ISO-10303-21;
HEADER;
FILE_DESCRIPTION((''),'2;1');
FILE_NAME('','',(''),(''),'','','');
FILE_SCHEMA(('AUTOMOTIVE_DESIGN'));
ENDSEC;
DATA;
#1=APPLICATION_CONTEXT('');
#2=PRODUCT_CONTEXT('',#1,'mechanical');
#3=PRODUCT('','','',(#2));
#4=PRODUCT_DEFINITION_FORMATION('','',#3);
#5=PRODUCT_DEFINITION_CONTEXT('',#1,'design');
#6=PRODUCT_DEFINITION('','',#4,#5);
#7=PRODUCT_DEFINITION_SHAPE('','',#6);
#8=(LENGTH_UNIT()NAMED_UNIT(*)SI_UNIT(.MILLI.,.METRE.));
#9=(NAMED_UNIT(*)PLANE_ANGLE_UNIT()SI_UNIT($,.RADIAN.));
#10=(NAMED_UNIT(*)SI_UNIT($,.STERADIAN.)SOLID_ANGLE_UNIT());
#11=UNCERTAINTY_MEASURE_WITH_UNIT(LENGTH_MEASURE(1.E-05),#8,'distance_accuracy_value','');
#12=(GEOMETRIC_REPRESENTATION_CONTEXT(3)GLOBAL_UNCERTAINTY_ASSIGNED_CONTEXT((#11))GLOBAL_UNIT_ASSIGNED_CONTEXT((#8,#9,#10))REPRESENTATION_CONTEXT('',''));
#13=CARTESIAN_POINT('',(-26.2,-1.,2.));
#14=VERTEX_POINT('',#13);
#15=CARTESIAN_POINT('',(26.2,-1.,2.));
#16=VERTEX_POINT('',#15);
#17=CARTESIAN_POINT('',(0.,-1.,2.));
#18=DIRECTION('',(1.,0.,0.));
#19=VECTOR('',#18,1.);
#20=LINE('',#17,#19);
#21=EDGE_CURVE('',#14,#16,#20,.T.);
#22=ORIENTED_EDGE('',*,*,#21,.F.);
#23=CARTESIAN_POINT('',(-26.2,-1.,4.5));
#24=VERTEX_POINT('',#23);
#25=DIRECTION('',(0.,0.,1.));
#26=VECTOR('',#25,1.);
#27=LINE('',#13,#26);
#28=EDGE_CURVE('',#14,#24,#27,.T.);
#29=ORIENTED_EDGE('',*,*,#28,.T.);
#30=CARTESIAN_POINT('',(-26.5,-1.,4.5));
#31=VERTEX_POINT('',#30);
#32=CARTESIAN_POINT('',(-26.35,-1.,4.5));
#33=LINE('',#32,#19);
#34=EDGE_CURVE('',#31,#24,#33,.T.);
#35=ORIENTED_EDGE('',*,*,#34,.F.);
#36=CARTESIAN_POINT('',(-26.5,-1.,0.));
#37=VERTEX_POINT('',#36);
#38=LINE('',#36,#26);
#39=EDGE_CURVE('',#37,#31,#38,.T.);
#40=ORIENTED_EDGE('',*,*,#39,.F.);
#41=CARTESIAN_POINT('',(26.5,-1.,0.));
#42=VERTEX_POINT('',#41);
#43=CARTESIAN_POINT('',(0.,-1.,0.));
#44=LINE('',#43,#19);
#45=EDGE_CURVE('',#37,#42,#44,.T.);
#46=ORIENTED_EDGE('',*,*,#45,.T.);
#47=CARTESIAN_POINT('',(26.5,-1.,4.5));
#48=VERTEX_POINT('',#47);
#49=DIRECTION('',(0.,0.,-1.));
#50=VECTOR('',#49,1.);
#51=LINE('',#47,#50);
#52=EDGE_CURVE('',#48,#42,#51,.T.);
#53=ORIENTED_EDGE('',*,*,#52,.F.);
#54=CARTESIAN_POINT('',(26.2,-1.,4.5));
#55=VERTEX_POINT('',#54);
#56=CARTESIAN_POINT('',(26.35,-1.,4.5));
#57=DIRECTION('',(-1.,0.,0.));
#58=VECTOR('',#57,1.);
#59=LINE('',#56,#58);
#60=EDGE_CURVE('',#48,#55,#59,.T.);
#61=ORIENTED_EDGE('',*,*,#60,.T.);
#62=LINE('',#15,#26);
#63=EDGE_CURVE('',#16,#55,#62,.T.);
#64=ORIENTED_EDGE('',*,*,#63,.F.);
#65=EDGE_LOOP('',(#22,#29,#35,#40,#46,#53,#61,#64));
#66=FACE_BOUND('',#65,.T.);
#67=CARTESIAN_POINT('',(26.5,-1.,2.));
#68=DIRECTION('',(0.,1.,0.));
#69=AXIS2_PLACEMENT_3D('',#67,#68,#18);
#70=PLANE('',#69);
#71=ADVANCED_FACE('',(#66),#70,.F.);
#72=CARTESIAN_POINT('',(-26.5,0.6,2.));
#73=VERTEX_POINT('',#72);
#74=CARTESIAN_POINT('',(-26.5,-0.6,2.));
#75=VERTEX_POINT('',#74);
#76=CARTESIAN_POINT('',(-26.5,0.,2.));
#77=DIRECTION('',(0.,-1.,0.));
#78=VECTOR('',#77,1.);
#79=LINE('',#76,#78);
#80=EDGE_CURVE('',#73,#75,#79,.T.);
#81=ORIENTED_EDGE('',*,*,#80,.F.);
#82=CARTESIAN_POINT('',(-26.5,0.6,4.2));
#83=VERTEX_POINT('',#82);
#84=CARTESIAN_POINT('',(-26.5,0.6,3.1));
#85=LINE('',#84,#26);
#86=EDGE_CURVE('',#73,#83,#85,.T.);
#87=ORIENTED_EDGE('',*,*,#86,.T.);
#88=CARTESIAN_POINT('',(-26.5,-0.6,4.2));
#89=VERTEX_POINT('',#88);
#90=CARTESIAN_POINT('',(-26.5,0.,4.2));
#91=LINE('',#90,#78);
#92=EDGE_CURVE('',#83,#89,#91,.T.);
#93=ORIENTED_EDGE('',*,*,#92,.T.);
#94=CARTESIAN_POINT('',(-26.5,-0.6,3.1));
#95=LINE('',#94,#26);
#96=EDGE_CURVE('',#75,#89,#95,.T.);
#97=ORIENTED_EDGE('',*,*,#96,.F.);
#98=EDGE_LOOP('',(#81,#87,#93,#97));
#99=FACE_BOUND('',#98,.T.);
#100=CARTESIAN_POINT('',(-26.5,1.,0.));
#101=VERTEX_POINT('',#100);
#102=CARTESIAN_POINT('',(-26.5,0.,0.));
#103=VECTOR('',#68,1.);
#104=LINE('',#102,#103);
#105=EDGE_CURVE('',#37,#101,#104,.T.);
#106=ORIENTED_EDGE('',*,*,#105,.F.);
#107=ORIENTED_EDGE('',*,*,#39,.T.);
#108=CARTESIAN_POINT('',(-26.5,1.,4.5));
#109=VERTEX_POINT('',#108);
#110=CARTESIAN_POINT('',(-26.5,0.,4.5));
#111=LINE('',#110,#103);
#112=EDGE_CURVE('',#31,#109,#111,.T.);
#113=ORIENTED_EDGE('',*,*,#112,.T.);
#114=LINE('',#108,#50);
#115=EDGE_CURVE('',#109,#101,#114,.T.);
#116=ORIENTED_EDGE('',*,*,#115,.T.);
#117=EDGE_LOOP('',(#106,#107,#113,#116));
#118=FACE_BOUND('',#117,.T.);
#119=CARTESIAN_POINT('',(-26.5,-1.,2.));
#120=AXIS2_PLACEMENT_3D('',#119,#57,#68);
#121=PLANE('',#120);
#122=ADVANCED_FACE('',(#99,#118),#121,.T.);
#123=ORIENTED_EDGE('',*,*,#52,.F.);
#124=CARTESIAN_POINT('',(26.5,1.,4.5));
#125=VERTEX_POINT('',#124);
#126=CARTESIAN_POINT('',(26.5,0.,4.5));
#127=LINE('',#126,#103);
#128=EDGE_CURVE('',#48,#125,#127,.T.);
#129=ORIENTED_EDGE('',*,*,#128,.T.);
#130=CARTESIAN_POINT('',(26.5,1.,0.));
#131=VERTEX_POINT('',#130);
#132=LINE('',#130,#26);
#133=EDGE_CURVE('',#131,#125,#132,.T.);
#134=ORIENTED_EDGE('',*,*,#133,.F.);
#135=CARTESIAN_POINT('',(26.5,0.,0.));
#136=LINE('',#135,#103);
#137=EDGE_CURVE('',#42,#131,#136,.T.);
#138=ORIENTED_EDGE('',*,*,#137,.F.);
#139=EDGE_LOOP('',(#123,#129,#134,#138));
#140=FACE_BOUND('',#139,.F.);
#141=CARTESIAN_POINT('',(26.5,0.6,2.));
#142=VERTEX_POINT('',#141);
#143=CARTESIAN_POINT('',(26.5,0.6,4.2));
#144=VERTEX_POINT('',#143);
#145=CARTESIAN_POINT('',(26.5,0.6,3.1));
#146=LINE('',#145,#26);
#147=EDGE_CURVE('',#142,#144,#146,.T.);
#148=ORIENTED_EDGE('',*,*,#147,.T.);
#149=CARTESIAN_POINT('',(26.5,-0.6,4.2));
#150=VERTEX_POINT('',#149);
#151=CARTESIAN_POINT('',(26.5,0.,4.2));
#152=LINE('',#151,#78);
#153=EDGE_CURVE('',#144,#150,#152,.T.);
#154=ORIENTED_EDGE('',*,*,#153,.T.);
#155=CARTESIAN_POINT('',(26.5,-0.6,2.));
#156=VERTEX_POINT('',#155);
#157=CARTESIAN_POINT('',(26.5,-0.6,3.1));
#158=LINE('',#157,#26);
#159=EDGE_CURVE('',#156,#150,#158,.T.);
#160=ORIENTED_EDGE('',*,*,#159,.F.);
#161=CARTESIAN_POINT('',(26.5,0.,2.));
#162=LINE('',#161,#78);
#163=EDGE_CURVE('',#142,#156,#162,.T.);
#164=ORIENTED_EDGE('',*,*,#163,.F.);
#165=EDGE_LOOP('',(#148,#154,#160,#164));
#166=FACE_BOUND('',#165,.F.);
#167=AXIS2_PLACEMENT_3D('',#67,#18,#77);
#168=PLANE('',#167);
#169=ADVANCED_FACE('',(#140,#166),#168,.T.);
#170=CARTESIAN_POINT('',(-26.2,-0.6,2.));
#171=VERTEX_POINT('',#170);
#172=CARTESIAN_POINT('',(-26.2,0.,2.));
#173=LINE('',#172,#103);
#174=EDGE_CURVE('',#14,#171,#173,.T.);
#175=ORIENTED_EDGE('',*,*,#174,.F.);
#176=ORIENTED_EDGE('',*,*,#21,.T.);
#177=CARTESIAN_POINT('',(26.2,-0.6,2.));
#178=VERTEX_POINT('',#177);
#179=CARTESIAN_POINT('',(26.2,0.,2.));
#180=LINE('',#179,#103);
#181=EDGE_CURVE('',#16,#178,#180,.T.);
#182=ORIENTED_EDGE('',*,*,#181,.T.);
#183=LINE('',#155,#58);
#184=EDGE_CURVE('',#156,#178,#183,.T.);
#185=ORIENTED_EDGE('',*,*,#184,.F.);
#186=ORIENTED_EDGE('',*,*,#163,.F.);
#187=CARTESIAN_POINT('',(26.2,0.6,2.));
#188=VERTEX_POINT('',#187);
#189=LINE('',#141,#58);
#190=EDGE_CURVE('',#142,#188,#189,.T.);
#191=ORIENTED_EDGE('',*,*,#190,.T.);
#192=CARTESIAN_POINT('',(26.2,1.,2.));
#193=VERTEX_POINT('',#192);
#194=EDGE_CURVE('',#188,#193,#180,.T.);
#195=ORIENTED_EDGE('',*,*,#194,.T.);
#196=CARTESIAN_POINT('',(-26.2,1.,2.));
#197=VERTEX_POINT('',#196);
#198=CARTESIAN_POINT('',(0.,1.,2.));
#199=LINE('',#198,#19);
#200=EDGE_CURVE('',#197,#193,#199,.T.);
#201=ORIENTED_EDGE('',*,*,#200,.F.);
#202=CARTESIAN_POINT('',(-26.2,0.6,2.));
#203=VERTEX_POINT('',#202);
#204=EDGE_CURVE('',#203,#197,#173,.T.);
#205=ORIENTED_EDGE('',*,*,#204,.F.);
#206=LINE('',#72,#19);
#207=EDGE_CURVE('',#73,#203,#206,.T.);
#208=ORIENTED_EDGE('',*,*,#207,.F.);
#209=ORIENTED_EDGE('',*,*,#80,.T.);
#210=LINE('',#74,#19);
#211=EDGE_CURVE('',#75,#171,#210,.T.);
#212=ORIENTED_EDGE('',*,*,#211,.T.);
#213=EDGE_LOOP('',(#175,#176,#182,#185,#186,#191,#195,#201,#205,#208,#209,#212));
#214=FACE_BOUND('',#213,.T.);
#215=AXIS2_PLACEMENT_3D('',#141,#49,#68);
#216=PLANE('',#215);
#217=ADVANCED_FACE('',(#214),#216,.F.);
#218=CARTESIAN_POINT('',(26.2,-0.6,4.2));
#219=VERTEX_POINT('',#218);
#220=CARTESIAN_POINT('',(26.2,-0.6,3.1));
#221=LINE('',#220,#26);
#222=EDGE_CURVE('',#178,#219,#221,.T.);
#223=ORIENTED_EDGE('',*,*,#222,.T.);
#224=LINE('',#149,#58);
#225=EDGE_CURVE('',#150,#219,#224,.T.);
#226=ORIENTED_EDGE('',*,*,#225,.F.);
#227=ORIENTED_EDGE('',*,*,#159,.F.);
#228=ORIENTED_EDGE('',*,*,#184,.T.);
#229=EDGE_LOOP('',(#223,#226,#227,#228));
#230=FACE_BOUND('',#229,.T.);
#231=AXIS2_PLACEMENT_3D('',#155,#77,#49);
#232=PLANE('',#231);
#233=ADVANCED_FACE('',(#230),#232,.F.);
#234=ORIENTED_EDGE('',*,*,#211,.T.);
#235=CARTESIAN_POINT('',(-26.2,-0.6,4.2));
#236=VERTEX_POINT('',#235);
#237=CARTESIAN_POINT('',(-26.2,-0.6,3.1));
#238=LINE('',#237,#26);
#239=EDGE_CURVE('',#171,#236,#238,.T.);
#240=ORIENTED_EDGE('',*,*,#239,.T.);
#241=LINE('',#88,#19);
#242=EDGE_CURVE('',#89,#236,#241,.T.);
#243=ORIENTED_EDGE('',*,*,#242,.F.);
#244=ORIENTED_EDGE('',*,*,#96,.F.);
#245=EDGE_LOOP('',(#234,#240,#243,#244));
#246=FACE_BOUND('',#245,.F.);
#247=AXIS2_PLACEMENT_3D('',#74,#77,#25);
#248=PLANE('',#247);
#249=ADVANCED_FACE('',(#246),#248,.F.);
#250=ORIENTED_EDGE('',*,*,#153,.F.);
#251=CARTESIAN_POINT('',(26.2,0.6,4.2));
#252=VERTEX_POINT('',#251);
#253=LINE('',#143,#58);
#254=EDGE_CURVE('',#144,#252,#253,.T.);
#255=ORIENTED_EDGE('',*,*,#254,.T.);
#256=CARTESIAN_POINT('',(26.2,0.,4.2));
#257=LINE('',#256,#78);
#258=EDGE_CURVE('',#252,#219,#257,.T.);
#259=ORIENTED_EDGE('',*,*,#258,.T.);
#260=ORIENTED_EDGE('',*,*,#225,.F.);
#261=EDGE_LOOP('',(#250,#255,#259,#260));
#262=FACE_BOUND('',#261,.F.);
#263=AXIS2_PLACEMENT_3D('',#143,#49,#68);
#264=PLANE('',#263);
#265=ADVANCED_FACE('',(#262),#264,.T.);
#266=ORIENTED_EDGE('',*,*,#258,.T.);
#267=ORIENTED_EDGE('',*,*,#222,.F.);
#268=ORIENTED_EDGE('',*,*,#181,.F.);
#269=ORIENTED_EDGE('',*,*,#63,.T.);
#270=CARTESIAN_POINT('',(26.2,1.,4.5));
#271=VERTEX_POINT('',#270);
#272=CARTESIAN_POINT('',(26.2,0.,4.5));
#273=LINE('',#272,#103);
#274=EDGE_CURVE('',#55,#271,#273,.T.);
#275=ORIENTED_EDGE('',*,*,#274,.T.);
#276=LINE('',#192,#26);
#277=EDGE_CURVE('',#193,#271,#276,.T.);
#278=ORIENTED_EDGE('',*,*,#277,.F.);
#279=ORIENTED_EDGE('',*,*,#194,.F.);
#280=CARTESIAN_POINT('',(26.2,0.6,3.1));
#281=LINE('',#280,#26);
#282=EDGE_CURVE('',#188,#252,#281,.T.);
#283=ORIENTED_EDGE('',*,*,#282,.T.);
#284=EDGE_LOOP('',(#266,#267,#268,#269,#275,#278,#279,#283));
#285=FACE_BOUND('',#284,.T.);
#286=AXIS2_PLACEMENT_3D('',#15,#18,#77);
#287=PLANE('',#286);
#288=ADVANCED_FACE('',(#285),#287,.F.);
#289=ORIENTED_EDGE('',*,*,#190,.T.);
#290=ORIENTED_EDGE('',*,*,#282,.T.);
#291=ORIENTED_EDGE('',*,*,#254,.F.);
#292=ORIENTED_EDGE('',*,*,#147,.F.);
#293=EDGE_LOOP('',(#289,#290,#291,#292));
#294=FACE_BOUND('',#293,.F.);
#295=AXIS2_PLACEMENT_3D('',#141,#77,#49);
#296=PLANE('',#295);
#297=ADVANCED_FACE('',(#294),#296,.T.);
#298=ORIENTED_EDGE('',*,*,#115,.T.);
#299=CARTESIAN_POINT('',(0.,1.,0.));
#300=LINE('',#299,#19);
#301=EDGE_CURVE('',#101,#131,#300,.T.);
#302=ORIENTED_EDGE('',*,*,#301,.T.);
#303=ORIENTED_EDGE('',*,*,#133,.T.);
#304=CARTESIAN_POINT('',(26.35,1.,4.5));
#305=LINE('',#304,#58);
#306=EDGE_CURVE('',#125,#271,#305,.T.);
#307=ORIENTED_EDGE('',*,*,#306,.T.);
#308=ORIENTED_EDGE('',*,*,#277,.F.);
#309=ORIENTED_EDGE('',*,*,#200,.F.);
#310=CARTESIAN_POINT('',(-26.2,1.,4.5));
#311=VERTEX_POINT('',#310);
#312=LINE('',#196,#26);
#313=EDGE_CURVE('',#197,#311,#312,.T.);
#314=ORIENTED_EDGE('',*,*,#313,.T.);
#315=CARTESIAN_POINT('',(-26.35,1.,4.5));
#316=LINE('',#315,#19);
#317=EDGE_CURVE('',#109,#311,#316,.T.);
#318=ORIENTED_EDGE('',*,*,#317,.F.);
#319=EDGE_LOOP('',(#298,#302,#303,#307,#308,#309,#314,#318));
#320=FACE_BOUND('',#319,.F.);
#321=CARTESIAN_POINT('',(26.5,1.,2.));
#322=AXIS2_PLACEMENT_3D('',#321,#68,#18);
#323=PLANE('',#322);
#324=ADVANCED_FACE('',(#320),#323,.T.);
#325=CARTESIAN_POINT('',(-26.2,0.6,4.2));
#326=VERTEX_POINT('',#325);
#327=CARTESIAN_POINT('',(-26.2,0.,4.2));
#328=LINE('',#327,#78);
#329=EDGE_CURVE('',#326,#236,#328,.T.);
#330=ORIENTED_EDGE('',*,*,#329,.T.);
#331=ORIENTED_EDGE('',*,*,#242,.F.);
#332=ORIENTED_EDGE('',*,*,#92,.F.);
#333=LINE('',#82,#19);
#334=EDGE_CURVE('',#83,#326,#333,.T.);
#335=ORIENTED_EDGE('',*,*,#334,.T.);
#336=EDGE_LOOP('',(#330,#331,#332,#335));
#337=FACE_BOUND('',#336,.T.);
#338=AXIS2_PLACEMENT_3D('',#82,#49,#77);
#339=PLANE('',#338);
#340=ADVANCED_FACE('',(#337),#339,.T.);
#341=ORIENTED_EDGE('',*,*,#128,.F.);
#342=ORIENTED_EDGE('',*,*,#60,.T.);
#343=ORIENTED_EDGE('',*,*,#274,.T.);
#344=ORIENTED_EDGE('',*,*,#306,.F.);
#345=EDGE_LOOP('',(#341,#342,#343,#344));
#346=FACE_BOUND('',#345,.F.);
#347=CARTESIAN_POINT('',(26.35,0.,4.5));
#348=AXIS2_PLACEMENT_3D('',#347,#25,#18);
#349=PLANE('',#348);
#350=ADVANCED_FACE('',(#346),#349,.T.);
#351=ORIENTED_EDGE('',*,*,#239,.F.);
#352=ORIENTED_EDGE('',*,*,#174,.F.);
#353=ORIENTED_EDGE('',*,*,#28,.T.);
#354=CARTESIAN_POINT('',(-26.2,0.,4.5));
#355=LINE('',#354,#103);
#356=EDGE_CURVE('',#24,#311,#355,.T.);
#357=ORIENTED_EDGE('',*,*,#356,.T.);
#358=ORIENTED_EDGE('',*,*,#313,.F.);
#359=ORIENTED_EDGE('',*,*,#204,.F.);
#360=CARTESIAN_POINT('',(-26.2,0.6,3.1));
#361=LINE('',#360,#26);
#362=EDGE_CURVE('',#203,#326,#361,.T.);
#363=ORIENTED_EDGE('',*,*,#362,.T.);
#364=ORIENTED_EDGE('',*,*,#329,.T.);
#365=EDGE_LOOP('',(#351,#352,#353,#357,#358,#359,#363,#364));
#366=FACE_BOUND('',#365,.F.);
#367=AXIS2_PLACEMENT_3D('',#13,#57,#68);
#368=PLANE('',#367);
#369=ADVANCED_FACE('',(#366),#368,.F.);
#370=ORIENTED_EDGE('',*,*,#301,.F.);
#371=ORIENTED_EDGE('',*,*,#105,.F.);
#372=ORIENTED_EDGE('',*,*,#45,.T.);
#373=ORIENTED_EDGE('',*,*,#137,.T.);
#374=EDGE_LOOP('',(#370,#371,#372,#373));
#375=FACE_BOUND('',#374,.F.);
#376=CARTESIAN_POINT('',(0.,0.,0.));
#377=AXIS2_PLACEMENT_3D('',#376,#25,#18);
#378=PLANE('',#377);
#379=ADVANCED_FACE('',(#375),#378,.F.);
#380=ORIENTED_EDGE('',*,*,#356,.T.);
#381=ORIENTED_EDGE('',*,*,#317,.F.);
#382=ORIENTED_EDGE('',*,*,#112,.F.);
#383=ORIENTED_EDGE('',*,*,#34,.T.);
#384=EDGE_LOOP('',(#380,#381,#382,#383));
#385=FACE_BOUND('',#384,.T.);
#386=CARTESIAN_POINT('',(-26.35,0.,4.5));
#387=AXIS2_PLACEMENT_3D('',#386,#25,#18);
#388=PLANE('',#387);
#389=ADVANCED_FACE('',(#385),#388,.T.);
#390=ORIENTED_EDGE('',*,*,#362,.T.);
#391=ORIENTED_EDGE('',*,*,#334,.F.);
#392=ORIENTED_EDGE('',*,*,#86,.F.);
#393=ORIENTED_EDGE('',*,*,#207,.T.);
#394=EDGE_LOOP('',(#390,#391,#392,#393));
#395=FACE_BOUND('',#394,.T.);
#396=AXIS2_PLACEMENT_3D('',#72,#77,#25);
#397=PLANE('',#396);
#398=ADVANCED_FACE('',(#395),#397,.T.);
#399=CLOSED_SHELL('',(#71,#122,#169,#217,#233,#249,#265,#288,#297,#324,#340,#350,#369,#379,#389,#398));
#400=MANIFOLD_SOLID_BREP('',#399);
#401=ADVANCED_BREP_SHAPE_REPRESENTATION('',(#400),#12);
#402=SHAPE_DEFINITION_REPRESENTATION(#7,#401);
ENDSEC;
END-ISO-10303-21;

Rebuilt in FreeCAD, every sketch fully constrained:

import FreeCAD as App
import Part
import Sketcher

V = App.Vector


def add_polygon(sketch, points):
    """Adds a closed chain of lines whose ends are joined by coincident constraints."""
    first, n = sketch.GeometryCount, len(points)
    for a, b in zip(points, points[1:] + points[:1]):
        sketch.addGeometry(Part.LineSegment(App.Vector(*a, 0), App.Vector(*b, 0)), False)
    for i in range(n):
        sketch.addConstraint(Sketcher.Constraint("Coincident", first + i, 2, first + (i + 1) % n, 1))

doc = App.newDocument("Part")
body = doc.addObject("PartDesign::Body", "Body")

# Sketch on XY plane
sketch1 = body.newObject("Sketcher::SketchObject", "Sketch")
sketch1.AttachmentSupport = (doc.getObject("XY_Plane"), [""])
sketch1.MapMode = "FlatFace"
add_polygon(sketch1, [(-26.5, 1), (-26.5, -1), (26.5, -1), (26.5, 1)])  # lines 0-3
sketch1.addConstraint(Sketcher.Constraint("Vertical", 0))
sketch1.addConstraint(Sketcher.Constraint("Horizontal", 1))
sketch1.addConstraint(Sketcher.Constraint("Vertical", 2))
sketch1.addConstraint(Sketcher.Constraint("Horizontal", 3))
sketch1.addConstraint(Sketcher.Constraint("Symmetric", 0, 2, 2, 2, -1, 1))
sketch1.addConstraint(Sketcher.Constraint("DistanceX", 1, 1, 1, 2, 53.0))
sketch1.addConstraint(Sketcher.Constraint("DistanceY", 0, 2, 0, 1, 2.0))
pad1 = body.newObject("PartDesign::Pad", "Pad")
pad1.Profile = sketch1
pad1.Length = 2

# Sketch on XY plane
sketch2 = body.newObject("Sketcher::SketchObject", "Sketch001")
sketch2.AttachmentSupport = (doc.getObject("XY_Plane"), [""])
sketch2.MapMode = "FlatFace"
sketch2.AttachmentOffset = App.Placement(V(0, 0, 2), App.Rotation())
add_polygon(sketch2, [(-26.5, 1), (-26.5, -1), (-26.2, -1), (-26.2, 1)])  # lines 0-3
sketch2.addConstraint(Sketcher.Constraint("Vertical", 0))
sketch2.addConstraint(Sketcher.Constraint("Horizontal", 1))
sketch2.addConstraint(Sketcher.Constraint("Vertical", 2))
sketch2.addConstraint(Sketcher.Constraint("Horizontal", 3))
sketch2.addConstraint(Sketcher.Constraint("DistanceY", 0, 2, 0, 1, 2.0))
sketch2.addConstraint(Sketcher.Constraint("DistanceX", 1, 1, 1, 2, 0.3))
sketch2.addConstraint(Sketcher.Constraint("DistanceY", 0, 2, -1, 1, 1.0))
sketch2.addConstraint(Sketcher.Constraint("DistanceX", 0, 2, -1, 1, 26.5))
pad2 = body.newObject("PartDesign::Pad", "Pad001")
pad2.Profile = sketch2
pad2.Length = 2.5

# Sketch on YZ plane
sketch3 = body.newObject("Sketcher::SketchObject", "Sketch002")
sketch3.AttachmentSupport = (doc.getObject("YZ_Plane"), [""])
sketch3.MapMode = "FlatFace"
sketch3.AttachmentOffset = App.Placement(V(0, 0, -26.5), App.Rotation())
add_polygon(sketch3, [(0.6, 4.2), (0.6, 2), (-0.6, 2), (-0.6, 4.2)])  # lines 0-3
sketch3.addConstraint(Sketcher.Constraint("Vertical", 0))
sketch3.addConstraint(Sketcher.Constraint("Horizontal", 1))
sketch3.addConstraint(Sketcher.Constraint("Vertical", 2))
sketch3.addConstraint(Sketcher.Constraint("Horizontal", 3))
sketch3.addConstraint(Sketcher.Constraint("DistanceX", 1, 2, 1, 1, 1.2))
sketch3.addConstraint(Sketcher.Constraint("DistanceY", 0, 2, 0, 1, 2.2))
sketch3.addConstraint(Sketcher.Constraint("DistanceY", -1, 1, 0, 2, 2.0))
sketch3.addConstraint(Sketcher.Constraint("DistanceX", -1, 1, 0, 2, 0.6))
pocket1 = body.newObject("PartDesign::Pocket", "Pocket")
pocket1.Profile = sketch3
pocket1.Length = 0.3
pocket1.Reversed = True
doc.recompute()

mirrored = body.newObject("PartDesign::Mirrored", "Mirrored")
mirrored.Originals = [pad2]
mirrored.MirrorPlane = (doc.getObject("YZ_Plane"), [""])
body.Tip = mirrored
doc.recompute()

mirrored2 = body.newObject("PartDesign::Mirrored", "Mirrored001")
mirrored2.Originals = [pocket1]
mirrored2.MirrorPlane = (doc.getObject("YZ_Plane"), [""])
body.Tip = mirrored2

doc.recompute()
